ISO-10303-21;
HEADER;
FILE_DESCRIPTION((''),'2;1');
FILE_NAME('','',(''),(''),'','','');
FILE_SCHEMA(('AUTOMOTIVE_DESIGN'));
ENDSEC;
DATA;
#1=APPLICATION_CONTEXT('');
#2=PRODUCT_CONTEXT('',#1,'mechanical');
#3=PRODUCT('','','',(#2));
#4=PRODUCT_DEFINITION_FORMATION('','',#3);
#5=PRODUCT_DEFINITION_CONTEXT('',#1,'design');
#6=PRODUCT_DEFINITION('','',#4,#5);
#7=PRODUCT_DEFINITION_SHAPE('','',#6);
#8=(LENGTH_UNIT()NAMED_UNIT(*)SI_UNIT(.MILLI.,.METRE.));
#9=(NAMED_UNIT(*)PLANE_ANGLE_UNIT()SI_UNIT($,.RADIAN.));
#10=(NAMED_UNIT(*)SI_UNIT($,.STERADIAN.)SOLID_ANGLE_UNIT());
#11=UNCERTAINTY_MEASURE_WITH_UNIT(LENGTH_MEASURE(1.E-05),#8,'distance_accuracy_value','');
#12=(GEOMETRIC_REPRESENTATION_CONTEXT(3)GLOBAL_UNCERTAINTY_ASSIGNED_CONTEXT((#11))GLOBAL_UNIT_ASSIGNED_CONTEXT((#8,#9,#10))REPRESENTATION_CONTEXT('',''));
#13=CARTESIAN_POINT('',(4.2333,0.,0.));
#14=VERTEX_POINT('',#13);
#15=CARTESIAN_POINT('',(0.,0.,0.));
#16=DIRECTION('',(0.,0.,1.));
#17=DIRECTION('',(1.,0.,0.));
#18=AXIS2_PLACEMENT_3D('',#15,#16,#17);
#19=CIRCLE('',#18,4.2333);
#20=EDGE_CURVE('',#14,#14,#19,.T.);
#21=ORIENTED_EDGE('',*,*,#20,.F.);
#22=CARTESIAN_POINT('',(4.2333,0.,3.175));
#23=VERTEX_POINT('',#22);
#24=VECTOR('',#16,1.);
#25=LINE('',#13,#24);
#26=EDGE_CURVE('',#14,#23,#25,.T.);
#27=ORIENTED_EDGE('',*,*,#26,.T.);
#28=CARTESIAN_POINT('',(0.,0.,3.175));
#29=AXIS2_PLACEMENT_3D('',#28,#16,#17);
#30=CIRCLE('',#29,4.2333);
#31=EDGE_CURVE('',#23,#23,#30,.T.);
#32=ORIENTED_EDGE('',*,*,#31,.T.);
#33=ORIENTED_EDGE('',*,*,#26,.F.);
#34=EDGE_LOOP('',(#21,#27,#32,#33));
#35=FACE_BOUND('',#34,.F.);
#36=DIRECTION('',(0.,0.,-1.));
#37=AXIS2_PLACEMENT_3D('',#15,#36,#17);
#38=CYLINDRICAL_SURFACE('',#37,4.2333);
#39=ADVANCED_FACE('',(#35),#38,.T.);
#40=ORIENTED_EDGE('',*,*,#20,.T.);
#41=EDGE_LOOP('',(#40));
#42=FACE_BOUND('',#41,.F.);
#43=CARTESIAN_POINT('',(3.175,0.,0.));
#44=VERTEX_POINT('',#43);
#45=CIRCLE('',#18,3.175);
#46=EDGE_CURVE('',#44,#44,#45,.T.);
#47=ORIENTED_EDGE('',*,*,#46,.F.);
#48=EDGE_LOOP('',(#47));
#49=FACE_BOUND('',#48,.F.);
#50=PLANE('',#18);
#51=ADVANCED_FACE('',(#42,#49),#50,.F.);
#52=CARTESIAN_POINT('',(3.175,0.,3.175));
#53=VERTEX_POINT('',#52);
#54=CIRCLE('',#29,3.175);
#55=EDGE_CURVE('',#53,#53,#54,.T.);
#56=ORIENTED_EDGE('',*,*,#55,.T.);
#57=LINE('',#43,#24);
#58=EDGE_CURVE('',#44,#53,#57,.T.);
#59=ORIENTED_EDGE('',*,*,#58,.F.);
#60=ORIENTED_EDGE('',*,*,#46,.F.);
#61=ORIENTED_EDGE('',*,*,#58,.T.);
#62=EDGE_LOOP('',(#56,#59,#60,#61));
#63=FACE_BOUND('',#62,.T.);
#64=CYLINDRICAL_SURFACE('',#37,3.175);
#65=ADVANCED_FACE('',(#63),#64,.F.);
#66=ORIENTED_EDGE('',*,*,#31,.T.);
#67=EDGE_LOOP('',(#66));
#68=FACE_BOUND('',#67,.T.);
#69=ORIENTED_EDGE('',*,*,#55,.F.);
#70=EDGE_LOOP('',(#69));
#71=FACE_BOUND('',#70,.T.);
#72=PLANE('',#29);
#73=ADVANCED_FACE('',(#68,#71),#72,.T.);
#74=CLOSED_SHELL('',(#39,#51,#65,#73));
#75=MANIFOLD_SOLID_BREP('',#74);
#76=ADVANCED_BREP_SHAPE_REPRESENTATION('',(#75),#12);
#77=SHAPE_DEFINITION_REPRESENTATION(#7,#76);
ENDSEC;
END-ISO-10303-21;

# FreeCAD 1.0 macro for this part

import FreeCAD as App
import Part
import Sketcher

V = App.Vector
Q = App.Units.Quantity

doc = App.newDocument("Part")
body = doc.addObject("PartDesign::Body", "Body")

sketch1 = doc.addObject("Sketcher::SketchObject", "Sketch")
body.addObject(sketch1)
sketch1.AttachmentSupport = (doc.XY_Plane, [""])
sketch1.MapMode = "FlatFace"
sketch1.addGeometry(Part.Circle(V(0, 0, 0), V(0, 0, 1), 4.2), False)
sketch1.addGeometry(Part.Circle(V(0, 0, 0), V(0, 0, 1), 3.2), False)
sketch1.addConstraint(Sketcher.Constraint("Coincident", 0, 3, -1, 1))
sketch1.addConstraint(Sketcher.Constraint("Coincident", 1, 3, -1, 1))
sketch1.addConstraint(Sketcher.Constraint("Diameter", 1, Q("0.25 in")))
sketch1.addConstraint(Sketcher.Constraint("Diameter", 0, Q("8.4666 mm")))
pad1 = doc.addObject("PartDesign::Pad", "Pad")
body.addObject(pad1)
pad1.Profile = sketch1
pad1.Length = Q("0.125 in")

doc.recompute()
